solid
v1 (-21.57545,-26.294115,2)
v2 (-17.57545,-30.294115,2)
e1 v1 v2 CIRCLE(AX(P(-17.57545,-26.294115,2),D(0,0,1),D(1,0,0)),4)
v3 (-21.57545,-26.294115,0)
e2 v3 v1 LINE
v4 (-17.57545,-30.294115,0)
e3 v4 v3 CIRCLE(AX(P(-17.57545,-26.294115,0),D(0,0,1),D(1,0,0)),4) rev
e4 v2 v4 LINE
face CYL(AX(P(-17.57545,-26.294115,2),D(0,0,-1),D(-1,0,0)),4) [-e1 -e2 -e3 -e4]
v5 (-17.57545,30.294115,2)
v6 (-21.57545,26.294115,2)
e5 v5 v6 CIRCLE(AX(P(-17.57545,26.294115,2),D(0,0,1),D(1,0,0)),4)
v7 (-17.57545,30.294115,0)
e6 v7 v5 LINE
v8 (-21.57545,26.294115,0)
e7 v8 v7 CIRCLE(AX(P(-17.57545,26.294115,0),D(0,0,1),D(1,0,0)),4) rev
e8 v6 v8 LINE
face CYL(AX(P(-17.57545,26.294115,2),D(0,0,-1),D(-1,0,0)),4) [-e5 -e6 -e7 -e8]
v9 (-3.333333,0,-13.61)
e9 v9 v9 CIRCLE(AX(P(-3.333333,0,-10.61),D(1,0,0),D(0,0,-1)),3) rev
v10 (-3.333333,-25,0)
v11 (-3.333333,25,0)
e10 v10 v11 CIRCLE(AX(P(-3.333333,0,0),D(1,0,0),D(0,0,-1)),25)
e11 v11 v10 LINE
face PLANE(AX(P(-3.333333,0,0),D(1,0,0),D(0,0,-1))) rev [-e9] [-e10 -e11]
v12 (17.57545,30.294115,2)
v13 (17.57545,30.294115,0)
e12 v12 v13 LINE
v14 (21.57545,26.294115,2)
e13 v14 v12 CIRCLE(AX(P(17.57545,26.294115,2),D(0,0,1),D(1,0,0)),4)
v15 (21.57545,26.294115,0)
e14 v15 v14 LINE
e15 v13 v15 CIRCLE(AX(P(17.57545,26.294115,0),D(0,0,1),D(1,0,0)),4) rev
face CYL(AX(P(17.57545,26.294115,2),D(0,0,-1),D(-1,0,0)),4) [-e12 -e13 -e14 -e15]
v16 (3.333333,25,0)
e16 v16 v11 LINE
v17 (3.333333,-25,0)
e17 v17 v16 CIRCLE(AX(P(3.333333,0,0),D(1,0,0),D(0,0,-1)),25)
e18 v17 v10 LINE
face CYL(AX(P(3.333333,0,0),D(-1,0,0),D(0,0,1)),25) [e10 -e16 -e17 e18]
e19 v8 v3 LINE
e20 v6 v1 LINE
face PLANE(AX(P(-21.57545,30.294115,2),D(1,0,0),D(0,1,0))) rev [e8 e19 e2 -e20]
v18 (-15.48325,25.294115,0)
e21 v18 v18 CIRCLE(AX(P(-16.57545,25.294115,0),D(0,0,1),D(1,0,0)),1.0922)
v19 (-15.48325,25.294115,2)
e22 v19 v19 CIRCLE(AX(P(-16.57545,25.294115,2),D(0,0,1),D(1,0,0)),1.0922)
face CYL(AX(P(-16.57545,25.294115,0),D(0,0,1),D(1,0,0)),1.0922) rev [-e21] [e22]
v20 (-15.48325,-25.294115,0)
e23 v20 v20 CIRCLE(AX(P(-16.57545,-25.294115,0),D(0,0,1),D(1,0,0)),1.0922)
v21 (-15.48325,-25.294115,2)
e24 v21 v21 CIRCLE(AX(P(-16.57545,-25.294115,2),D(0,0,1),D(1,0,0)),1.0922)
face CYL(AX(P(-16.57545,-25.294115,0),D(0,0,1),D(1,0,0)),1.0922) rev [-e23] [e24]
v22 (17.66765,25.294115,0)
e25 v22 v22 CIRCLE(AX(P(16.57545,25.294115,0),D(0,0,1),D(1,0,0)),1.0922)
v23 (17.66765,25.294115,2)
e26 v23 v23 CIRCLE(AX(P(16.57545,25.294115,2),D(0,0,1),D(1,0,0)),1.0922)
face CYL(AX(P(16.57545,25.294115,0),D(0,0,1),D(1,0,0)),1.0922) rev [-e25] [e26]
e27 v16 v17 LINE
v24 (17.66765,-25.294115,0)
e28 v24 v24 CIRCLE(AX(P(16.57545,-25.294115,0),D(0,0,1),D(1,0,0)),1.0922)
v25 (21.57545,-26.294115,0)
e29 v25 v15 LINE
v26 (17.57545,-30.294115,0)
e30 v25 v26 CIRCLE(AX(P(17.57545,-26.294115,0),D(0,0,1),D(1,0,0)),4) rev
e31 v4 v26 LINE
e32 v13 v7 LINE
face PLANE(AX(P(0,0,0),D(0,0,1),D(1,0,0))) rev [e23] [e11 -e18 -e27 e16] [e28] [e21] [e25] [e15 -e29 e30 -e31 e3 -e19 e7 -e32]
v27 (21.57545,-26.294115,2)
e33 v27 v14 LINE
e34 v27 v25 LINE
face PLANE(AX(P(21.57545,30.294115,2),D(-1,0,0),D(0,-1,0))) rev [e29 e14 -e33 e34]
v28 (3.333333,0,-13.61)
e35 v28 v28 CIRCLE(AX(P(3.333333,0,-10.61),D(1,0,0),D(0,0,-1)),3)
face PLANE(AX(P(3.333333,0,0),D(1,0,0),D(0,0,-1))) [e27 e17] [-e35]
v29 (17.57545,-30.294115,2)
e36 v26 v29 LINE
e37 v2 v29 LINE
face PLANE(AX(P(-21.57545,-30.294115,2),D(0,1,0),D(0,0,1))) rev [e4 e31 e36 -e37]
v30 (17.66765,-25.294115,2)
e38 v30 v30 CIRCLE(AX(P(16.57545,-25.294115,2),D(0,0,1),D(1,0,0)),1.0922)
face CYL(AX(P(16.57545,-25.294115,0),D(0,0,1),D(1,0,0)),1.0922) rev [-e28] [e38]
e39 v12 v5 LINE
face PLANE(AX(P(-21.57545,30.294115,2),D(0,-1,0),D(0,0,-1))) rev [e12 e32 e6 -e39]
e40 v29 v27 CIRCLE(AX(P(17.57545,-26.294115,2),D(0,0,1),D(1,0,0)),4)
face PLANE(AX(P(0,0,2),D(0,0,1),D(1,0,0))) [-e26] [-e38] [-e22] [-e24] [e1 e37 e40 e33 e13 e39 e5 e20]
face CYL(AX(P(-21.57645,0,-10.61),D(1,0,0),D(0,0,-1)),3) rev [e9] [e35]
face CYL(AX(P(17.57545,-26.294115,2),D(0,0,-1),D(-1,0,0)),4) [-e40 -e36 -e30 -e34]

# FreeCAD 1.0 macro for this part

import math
import FreeCAD as App
import Part
import Sketcher
Q = App.Units.Quantity


def edges_at(feature, points):
    """Names of the edges that pass closest to the given points."""
    edges = feature.Shape.Edges
    near = lambda p: min(range(len(edges)), key=lambda i: edges[i].distToShape(Part.Vertex(*p))[0])
    return sorted({f"Edge{near(p) + 1}" for p in points})


def add_polygon(sketch, points):
    """Adds a closed chain of lines whose ends are joined by coincident constraints."""
    first, n = sketch.GeometryCount, len(points)
    for a, b in zip(points, points[1:] + points[:1]):
        sketch.addGeometry(Part.LineSegment(App.Vector(*a, 0), App.Vector(*b, 0)), False)
    for i in range(n):
        sketch.addConstraint(Sketcher.Constraint("Coincident", first + i, 2, first + (i + 1) % n, 1))

doc = App.newDocument("Part")
body = doc.addObject("PartDesign::Body", "Body")

# Sketch on XY plane
sketch1 = doc.addObject("Sketcher::SketchObject", "Sketch")
body.addObject(sketch1)
sketch1.AttachmentSupport = (doc.XY_Plane, [""])
sketch1.MapMode = "FlatFace"
add_polygon(sketch1, [(-22, 30), (-22, -30), (22, -30), (22, 30)])  # lines 0-3
sketch1.addConstraint(Sketcher.Constraint("Vertical", 0))
sketch1.addConstraint(Sketcher.Constraint("Horizontal", 1))
sketch1.addConstraint(Sketcher.Constraint("Vertical", 2))
sketch1.addConstraint(Sketcher.Constraint("Horizontal", 3))
sketch1.addConstraint(Sketcher.Constraint("Symmetric", 0, 2, 2, 2, -1, 1))
sketch1.addConstraint(Sketcher.Constraint("DistanceX", 1, 1, 1, 2, Q("43.1509 mm")))
sketch1.addConstraint(Sketcher.Constraint("DistanceY", 0, 2, 0, 1, Q("60.58823 mm")))
pad1 = doc.addObject("PartDesign::Pad", "Pad")
body.addObject(pad1)
pad1.Profile = sketch1
pad1.Length = 2
doc.recompute()

fillet = doc.addObject("PartDesign::Fillet", "Fillet")
body.addObject(fillet)
fillet.Base = (pad1, edges_at(pad1, [
    (21.575, -30.294, 1),
    (-21.575, -30.294, 1),
    (-21.575, 30.294, 1),
    (21.575, 30.294, 1),
]))
fillet.Radius = 4

# Sketch on XY plane
sketch2 = doc.addObject("Sketcher::SketchObject", "Sketch001")
body.addObject(sketch2)
sketch2.AttachmentSupport = (doc.XY_Plane, [""])
sketch2.MapMode = "FlatFace"
sketch2.AttachmentOffset = App.Placement(App.Vector(0, 0, 2), App.Rotation())
sketch2.addGeometry(Part.Circle(App.Vector(-16.6, 25.3, 0), App.Vector(0, 0, 1), 1.1), False)
sketch2.addGeometry(Part.Circle(App.Vector(16.6, 25.3, 0), App.Vector(0, 0, 1), 1.1), False)
sketch2.addGeometry(Part.Circle(App.Vector(-16.6, -25.3, 0), App.Vector(0, 0, 1), 1.1), False)
sketch2.addGeometry(Part.Circle(App.Vector(16.6, -25.3, 0), App.Vector(0, 0, 1), 1.1), False)
sketch2.addConstraint(Sketcher.Constraint("Equal", 0, 1))
sketch2.addConstraint(Sketcher.Constraint("Equal", 1, 2))
sketch2.addConstraint(Sketcher.Constraint("Equal", 2, 3))
sketch2.addConstraint(Sketcher.Constraint("Symmetric", 1, 3, 2, 3, -1, 1))
sketch2.addConstraint(Sketcher.Constraint("Symmetric", 0, 3, 3, 3, -1, 1))
sketch2.addConstraint(Sketcher.Constraint("Symmetric", 0, 3, 1, 3, -2))
sketch2.addConstraint(Sketcher.Constraint("Diameter", 0, Q("2.1844 mm")))
sketch2.addConstraint(Sketcher.Constraint("DistanceX", 0, 3, 1, 3, Q("33.1509 mm")))
sketch2.addConstraint(Sketcher.Constraint("DistanceY", 2, 3, 0, 3, Q("50.58823 mm")))
pocket1 = doc.addObject("PartDesign::Pocket", "Pocket")
body.addObject(pocket1)
pocket1.Profile = sketch2
pocket1.Length = 2

# Sketch on YZ plane
sketch3 = doc.addObject("Sketcher::SketchObject", "Sketch002")
body.addObject(sketch3)
sketch3.AttachmentSupport = (doc.YZ_Plane, [""])
sketch3.MapMode = "FlatFace"
sketch3.addGeometry(Part.LineSegment(App.Vector(25, 0, 0), App.Vector(-25, 0, 0)), False)
sketch3.addGeometry(Part.ArcOfCircle(Part.Circle(App.Vector(0, 0, 0), App.Vector(0, 0, 1), 25), math.radians(180), math.radians(360)), False)
sketch3.addConstraint(Sketcher.Constraint("Coincident", 0, 1, 1, 2))
sketch3.addConstraint(Sketcher.Constraint("Coincident", 1, 1, 0, 2))
sketch3.addConstraint(Sketcher.Constraint("Horizontal", 0))
sketch3.addConstraint(Sketcher.Constraint("Coincident", 1, 3, -1, 1))
sketch3.addConstraint(Sketcher.Constraint("PointOnObject", 0, 1, -1))
sketch3.addConstraint(Sketcher.Constraint("Radius", 1, Q("25 mm")))
pad2 = doc.addObject("PartDesign::Pad", "Pad001")
body.addObject(pad2)
pad2.Profile = sketch3
pad2.Length = 6.666667
pad2.Midplane = True

# Sketch on YZ plane
sketch4 = doc.addObject("Sketcher::SketchObject", "Sketch003")
body.addObject(sketch4)
sketch4.AttachmentSupport = (doc.YZ_Plane, [""])
sketch4.MapMode = "FlatFace"
sketch4.AttachmentOffset = App.Placement(App.Vector(0, 0, 3.333333), App.Rotation())
sketch4.addGeometry(Part.Circle(App.Vector(0, -10.6, 0), App.Vector(0, 0, 1), 3), False)
sketch4.addConstraint(Sketcher.Constraint("PointOnObject", 0, 3, -2))
sketch4.addConstraint(Sketcher.Constraint("Diameter", 0, Q("6 mm")))
sketch4.addConstraint(Sketcher.Constraint("DistanceY", 0, 3, -1, 1, Q("10.61 mm")))
pocket2 = doc.addObject("PartDesign::Pocket", "Pocket001")
body.addObject(pocket2)
pocket2.Profile = sketch4
pocket2.Type = "UpToFirst"

doc.recompute()
